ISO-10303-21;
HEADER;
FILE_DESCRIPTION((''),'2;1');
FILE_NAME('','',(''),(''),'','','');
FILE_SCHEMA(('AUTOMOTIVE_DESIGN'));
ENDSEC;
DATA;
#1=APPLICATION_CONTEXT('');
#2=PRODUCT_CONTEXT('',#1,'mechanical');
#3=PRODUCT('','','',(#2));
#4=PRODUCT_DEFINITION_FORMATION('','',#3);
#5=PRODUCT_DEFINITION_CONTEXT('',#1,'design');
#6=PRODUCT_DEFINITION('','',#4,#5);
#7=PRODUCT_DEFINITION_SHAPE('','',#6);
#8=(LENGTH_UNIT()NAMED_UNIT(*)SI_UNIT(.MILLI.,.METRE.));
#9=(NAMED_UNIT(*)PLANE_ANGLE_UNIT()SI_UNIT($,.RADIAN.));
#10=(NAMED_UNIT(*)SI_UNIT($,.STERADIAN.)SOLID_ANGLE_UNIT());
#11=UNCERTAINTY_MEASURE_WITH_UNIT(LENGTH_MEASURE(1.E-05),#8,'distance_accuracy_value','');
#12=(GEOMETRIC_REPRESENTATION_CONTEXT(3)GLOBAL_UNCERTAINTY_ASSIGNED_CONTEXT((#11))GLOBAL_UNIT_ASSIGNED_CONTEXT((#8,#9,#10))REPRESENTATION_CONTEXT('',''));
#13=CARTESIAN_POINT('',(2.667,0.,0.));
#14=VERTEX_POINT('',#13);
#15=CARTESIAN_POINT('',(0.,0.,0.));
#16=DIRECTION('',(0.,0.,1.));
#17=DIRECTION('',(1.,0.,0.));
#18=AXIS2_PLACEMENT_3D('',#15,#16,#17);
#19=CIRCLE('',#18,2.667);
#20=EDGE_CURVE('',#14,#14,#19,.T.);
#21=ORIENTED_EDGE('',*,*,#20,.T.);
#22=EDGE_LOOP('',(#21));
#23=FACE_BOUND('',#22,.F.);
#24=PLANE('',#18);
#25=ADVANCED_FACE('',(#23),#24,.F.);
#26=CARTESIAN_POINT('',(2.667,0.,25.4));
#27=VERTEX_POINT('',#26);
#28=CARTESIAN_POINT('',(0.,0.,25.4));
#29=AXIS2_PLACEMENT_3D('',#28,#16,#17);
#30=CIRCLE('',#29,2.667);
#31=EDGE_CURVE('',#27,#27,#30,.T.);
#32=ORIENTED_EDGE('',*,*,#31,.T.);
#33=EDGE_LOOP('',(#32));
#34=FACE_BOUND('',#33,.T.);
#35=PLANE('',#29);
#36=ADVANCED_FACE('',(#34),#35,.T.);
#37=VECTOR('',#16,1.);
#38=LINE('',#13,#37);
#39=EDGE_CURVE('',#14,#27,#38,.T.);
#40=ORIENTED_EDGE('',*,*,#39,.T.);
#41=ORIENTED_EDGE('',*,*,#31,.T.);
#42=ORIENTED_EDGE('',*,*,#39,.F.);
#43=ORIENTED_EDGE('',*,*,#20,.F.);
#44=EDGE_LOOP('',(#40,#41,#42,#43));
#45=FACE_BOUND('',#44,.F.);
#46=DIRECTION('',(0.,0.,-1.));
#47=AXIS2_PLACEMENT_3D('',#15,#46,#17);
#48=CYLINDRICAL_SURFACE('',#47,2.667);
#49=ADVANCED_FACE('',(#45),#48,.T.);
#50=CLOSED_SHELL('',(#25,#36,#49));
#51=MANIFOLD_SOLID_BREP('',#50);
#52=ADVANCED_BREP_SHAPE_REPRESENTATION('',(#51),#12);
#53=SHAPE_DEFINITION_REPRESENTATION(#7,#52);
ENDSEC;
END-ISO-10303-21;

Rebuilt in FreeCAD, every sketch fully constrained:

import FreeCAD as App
import Part
import Sketcher
from FreeCAD import Vector
Q = App.Units.Quantity

doc = App.newDocument("Part")
params = doc.addObject("Spreadsheet::Sheet", "Params")
for row, (alias, value) in enumerate([
    ("sketch1_diameter", "0.21 in"),
    ("pad1_length", "1 in"),
], start=1):
    params.set(f"A{row}", alias)
    params.set(f"B{row}", "=" + value)
    params.setAlias(f"B{row}", alias)

body = doc.addObject("PartDesign::Body", "Body")

# Sketch on XY plane
sketch1 = doc.addObject("Sketcher::SketchObject", "Sketch")
body.addObject(sketch1)
sketch1.AttachmentSupport = (doc.XY_Plane, [""])
sketch1.MapMode = "FlatFace"
sketch1.addGeometry(Part.Circle(Vector(0, 0, 0), Vector(0, 0, 1), 2.667), False)
sketch1.addConstraint([
    Sketcher.Constraint("Coincident", 0, 3, -1, 1),
    Sketcher.Constraint("Diameter", 0, Q("0.21 in")),
])
sketch1.setExpression("Constraints[1]", "Params.sketch1_diameter")
pad1 = doc.addObject("PartDesign::Pad", "Pad")
body.addObject(pad1)
pad1.Profile = sketch1
pad1.setExpression("Length", "Params.pad1_length")

doc.recompute()
